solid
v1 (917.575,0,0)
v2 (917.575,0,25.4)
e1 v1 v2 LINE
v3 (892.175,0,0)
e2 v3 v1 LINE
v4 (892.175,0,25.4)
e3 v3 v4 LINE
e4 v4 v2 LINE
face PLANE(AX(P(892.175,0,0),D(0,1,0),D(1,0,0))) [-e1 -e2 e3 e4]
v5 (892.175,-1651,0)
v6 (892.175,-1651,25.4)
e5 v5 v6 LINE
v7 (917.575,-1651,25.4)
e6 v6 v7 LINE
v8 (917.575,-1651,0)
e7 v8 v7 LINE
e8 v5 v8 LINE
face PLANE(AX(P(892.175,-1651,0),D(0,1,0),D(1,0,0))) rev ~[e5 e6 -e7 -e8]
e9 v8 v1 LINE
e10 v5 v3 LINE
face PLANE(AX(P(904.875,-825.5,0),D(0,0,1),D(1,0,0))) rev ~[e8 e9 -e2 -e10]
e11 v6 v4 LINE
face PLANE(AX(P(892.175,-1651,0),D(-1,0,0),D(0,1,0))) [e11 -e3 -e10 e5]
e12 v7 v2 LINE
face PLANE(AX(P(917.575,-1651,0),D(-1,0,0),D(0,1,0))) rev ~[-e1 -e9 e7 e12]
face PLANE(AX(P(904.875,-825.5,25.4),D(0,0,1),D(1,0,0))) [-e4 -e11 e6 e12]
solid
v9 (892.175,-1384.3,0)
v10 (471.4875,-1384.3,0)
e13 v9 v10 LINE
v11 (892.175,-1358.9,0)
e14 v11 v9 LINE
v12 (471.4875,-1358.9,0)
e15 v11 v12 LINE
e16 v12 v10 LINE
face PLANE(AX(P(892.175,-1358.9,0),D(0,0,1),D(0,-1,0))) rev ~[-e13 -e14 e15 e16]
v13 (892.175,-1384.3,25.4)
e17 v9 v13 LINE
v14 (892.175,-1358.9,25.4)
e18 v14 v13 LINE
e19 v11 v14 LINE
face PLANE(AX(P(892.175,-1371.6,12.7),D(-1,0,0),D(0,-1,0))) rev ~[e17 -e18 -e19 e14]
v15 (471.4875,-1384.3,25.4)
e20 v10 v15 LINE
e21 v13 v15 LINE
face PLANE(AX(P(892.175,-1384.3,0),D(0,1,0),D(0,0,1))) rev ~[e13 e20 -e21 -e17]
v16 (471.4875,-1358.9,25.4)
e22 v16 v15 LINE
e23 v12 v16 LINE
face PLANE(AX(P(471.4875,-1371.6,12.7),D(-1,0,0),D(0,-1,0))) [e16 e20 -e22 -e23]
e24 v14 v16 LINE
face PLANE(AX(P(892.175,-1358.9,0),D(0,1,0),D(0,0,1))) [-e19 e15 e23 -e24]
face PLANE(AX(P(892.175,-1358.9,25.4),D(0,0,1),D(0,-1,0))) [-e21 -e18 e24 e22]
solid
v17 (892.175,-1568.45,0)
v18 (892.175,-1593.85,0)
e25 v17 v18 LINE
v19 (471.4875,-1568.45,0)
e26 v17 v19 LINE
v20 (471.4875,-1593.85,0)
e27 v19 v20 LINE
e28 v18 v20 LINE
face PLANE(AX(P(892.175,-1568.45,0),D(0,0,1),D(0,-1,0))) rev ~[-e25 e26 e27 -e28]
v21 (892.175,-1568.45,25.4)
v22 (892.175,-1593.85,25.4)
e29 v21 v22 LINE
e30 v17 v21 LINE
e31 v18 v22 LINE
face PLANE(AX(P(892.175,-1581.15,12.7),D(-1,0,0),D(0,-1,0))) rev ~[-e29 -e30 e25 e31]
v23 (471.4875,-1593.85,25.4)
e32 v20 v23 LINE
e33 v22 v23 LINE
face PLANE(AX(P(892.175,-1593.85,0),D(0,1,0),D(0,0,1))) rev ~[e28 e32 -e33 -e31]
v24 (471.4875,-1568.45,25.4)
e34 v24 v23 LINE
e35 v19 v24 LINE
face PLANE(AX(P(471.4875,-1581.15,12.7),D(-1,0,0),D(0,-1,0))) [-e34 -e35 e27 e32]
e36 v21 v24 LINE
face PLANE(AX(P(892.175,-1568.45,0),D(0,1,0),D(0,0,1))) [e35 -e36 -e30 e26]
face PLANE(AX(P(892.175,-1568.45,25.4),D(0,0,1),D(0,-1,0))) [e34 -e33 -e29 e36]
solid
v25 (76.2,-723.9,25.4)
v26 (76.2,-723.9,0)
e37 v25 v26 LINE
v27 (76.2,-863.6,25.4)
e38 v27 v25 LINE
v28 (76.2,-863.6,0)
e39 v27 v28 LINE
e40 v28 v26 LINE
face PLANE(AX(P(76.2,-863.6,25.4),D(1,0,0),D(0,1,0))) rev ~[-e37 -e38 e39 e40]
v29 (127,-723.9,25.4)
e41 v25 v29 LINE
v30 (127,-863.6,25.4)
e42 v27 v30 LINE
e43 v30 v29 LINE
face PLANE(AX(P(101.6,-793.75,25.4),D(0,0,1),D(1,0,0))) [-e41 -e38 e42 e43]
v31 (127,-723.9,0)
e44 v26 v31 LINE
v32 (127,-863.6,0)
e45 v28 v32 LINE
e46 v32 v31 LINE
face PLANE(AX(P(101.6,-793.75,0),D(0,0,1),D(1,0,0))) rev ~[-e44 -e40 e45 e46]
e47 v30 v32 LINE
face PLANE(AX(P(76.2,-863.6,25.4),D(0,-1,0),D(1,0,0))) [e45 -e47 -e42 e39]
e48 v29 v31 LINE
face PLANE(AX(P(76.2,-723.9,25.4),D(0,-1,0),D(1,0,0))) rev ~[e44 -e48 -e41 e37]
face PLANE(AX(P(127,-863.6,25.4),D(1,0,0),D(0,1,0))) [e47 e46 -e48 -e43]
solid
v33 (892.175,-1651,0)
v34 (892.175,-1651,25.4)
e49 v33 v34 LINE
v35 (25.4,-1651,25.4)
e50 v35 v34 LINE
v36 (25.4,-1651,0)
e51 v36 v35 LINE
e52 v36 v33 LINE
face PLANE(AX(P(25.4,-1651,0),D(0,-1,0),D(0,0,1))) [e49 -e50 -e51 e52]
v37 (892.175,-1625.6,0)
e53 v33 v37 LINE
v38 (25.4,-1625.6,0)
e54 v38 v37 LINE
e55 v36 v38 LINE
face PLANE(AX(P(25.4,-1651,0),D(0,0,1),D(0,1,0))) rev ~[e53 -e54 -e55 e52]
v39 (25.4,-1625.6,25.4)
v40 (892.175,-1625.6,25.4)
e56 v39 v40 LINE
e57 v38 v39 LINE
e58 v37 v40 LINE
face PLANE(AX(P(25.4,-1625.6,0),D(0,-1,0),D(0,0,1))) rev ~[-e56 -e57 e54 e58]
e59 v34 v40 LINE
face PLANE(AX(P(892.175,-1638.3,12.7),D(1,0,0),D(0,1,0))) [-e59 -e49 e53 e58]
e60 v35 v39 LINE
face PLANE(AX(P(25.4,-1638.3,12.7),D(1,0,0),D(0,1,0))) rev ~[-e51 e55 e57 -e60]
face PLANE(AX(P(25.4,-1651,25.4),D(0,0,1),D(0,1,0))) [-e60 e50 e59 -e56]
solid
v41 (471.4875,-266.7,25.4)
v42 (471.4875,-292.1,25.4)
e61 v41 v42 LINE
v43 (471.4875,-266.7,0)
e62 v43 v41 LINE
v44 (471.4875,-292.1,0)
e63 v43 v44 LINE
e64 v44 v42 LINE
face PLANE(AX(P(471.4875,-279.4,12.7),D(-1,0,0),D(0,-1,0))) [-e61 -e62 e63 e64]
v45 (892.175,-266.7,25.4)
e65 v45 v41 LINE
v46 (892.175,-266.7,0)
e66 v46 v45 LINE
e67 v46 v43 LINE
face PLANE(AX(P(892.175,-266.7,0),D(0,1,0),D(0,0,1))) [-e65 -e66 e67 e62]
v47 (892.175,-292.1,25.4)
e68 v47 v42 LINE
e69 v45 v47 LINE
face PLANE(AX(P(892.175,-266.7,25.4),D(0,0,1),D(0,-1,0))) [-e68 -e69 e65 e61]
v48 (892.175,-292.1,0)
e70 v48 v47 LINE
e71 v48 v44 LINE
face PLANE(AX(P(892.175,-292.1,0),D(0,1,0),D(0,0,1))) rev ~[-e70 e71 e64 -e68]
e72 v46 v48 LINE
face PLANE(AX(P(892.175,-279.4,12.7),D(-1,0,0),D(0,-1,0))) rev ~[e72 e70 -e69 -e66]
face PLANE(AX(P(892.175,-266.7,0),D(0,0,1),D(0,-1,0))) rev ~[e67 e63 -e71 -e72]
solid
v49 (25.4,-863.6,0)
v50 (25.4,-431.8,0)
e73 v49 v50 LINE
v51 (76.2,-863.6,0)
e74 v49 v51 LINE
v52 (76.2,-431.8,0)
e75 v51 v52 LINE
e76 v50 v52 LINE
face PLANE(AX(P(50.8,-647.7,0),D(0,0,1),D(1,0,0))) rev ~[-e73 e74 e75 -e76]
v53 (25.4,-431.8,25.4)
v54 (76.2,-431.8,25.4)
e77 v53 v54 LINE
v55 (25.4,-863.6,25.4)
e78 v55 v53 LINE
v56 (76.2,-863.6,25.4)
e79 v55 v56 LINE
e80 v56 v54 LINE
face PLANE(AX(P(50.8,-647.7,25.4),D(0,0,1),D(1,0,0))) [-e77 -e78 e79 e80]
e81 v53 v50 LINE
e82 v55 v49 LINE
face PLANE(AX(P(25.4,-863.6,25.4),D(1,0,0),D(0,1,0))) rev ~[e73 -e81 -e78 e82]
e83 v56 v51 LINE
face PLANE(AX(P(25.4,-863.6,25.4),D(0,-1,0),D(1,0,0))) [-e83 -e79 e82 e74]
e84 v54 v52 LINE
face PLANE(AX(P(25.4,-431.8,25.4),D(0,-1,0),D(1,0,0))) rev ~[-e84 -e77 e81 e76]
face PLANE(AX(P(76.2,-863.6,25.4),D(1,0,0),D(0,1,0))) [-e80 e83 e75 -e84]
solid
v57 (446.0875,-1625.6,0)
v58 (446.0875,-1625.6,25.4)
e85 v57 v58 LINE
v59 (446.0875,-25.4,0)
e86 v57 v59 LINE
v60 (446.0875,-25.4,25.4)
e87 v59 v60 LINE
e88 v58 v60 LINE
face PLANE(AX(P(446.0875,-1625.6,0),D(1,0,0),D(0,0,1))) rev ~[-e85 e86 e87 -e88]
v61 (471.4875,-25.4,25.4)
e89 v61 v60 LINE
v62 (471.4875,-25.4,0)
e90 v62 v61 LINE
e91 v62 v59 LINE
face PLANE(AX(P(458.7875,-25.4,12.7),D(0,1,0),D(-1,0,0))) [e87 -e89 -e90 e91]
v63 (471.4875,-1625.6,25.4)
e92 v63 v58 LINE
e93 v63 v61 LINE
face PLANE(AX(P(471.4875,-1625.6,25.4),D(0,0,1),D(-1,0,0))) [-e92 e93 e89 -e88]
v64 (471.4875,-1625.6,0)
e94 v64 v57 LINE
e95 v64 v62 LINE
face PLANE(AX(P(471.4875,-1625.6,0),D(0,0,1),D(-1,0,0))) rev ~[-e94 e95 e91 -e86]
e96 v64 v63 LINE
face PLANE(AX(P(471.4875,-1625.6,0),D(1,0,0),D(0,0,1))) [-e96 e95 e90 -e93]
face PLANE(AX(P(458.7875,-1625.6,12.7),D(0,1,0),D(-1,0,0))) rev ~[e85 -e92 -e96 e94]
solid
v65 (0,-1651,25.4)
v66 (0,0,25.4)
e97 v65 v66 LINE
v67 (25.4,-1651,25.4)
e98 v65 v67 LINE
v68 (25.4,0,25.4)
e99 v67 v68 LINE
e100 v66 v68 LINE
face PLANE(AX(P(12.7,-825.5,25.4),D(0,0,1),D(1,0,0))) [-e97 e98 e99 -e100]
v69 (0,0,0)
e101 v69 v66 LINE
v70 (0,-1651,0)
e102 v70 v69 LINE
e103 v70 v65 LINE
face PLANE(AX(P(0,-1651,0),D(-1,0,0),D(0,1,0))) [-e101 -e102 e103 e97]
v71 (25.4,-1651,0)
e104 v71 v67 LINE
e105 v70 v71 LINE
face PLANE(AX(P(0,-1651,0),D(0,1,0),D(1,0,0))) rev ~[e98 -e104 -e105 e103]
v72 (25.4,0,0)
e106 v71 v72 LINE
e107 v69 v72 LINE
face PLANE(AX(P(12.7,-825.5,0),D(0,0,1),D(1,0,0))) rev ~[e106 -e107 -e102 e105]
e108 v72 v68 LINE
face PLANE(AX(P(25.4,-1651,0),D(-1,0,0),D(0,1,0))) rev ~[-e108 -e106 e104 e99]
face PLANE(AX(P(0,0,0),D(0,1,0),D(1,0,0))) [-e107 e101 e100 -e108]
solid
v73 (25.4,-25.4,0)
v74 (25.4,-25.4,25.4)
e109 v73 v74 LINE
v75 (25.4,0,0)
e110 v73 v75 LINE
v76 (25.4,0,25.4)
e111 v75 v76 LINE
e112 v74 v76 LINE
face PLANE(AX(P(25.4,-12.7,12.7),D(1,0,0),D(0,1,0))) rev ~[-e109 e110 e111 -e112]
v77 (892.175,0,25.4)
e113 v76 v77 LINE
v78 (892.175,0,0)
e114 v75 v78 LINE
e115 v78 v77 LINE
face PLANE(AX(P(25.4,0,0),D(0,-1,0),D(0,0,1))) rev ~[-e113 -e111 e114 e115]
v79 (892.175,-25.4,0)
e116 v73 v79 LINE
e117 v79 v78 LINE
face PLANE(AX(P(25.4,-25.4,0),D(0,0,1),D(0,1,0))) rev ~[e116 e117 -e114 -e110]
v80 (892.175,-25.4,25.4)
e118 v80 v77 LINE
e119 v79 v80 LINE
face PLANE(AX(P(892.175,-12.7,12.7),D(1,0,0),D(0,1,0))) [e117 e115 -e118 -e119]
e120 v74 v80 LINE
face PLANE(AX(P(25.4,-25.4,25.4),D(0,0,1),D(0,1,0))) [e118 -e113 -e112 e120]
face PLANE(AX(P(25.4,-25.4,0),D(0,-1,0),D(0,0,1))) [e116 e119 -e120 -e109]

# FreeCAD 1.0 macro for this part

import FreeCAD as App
import Part
import Sketcher
from FreeCAD import Vector
Q = App.Units.Quantity


def add_polygon(sketch, points):
    """Adds a closed chain of lines whose ends are joined by coincident constraints."""
    first, n = sketch.GeometryCount, len(points)
    for a, b in zip(points, points[1:] + points[:1]):
        sketch.addGeometry(Part.LineSegment(App.Vector(*a, 0), App.Vector(*b, 0)), False)
    for i in range(n):
        sketch.addConstraint(Sketcher.Constraint("Coincident", first + i, 2, first + (i + 1) % n, 1))

doc = App.newDocument("Part")
params = doc.addObject("Spreadsheet::Sheet", "Params")
for row, (alias, value) in enumerate([
    ("sketch1_width", "1 in"),
    ("sketch1_height", "65 in"),
    ("pad1_length", "1 in"),
    ("sketch2_width", "1 in"),
    ("pad2_length", "34.125 in"),
    ("sketch3_width", "1 in"),
    ("pad3_length", "63 in"),
    ("sketch4_width", "1 in"),
    ("pad4_length", "16.5625 in"),
    ("sketch5_width", "2 in"),
    ("sketch5_height", "17 in"),
    ("pad5_length", "1 in"),
    ("sketch6_width", "2 in"),
    ("sketch6_height", "5.5 in"),
    ("pad6_length", "1 in"),
], start=1):
    params.set(f"A{row}", alias)
    params.set(f"B{row}", "=" + value)
    params.setAlias(f"B{row}", alias)

body = doc.addObject("PartDesign::Body", "Body")
body.AllowCompound = True

# Sketch on XY plane
sketch1 = body.newObject("Sketcher::SketchObject", "Sketch")
sketch1.AttachmentSupport = (doc.getObject("XY_Plane"), [""])
sketch1.MapMode = "FlatFace"
add_polygon(sketch1, [(0, 0), (0, -1651), (25, -1651), (25, 0)])  # lines 0-3
add_polygon(sketch1, [(892, 0), (892, -1651), (918, -1651), (918, 0)])  # lines 4-7
sketch1.addConstraint(Sketcher.Constraint("Vertical", 0))
sketch1.addConstraint(Sketcher.Constraint("Horizontal", 1))
sketch1.addConstraint(Sketcher.Constraint("Vertical", 2))
sketch1.addConstraint(Sketcher.Constraint("Horizontal", 3))
sketch1.addConstraint(Sketcher.Constraint("Vertical", 4))
sketch1.addConstraint(Sketcher.Constraint("Horizontal", 5))
sketch1.addConstraint(Sketcher.Constraint("Vertical", 6))
sketch1.addConstraint(Sketcher.Constraint("Horizontal", 7))
sketch1.addConstraint(Sketcher.Constraint("Coincident", 3, 2, -1, 1))
sketch1.addConstraint(Sketcher.Constraint("PointOnObject", 6, 2, -1))
sketch1.addConstraint(Sketcher.Constraint("Horizontal", 1, 2, 4, 2))
sketch1.addConstraint(Sketcher.Constraint("Equal", 3, 5))
sketch1.addConstraint(Sketcher.Constraint("DistanceX", 1, 1, 1, 2, Q("1 in")))
sketch1.addConstraint(Sketcher.Constraint("DistanceY", 0, 2, 0, 1, Q("65 in")))
sketch1.addConstraint(Sketcher.Constraint("DistanceX", -1, 1, 4, 2, Q("35.125 in")))
sketch1.setExpression("Constraints[20]", "Params.sketch1_width")
sketch1.setExpression("Constraints[21]", "Params.sketch1_height")
pad1 = body.newObject("PartDesign::Pad", "Pad")
pad1.Profile = sketch1
pad1.setExpression("Length", "Params.pad1_length")
body2 = doc.addObject("PartDesign::Body", "Body001")
body2.AllowCompound = True

# Sketch on YZ plane
sketch2 = body2.newObject("Sketcher::SketchObject", "Sketch001")
sketch2.AttachmentSupport = (doc.getObject("YZ_Plane001"), [""])
sketch2.MapMode = "FlatFace"
sketch2.AttachmentOffset = App.Placement(Vector(0, 0, 1 * 25.4), App.Rotation())
add_polygon(sketch2, [(-25, 25), (-25, 0), (0, 0), (0, 25)])  # lines 0-3
add_polygon(sketch2, [(-1651, 25), (-1651, 0), (-1626, 0), (-1626, 25)])  # lines 4-7
sketch2.addConstraint(Sketcher.Constraint("Vertical", 0))
sketch2.addConstraint(Sketcher.Constraint("Horizontal", 1))
sketch2.addConstraint(Sketcher.Constraint("Vertical", 2))
sketch2.addConstraint(Sketcher.Constraint("Horizontal", 3))
sketch2.addConstraint(Sketcher.Constraint("Vertical", 4))
sketch2.addConstraint(Sketcher.Constraint("Horizontal", 5))
sketch2.addConstraint(Sketcher.Constraint("Vertical", 6))
sketch2.addConstraint(Sketcher.Constraint("Horizontal", 7))
sketch2.addConstraint(Sketcher.Constraint("Coincident", 1, 2, -1, 1))
sketch2.addConstraint(Sketcher.Constraint("PointOnObject", 4, 2, -1))
sketch2.addConstraint(Sketcher.Constraint("Horizontal", 3, 2, 6, 2))
sketch2.addConstraint(Sketcher.Constraint("Equal", 3, 5))
sketch2.addConstraint(Sketcher.Constraint("Equal", 7, 0))
sketch2.addConstraint(Sketcher.Constraint("DistanceX", 1, 1, 1, 2, Q("1 in")))
sketch2.addConstraint(Sketcher.Constraint("DistanceX", 4, 2, -1, 1, Q("65 in")))
sketch2.setExpression("Constraints[21]", "Params.sketch2_width")
pad2 = body2.newObject("PartDesign::Pad", "Pad001")
pad2.Profile = sketch2
pad2.setExpression("Length", "Params.pad2_length")
body3 = doc.addObject("PartDesign::Body", "Body002")

# Sketch on XZ plane
sketch3 = body3.newObject("Sketcher::SketchObject", "Sketch002")
sketch3.AttachmentSupport = (doc.getObject("XZ_Plane002"), [""])
sketch3.MapMode = "FlatFace"
sketch3.AttachmentOffset = App.Placement(Vector(0, 0, 64 * 25.4), App.Rotation())
add_polygon(sketch3, [(471, 25), (471, 0), (446, 0), (446, 25)])  # lines 0-3
sketch3.addConstraint(Sketcher.Constraint("Vertical", 0))
sketch3.addConstraint(Sketcher.Constraint("Horizontal", 1))
sketch3.addConstraint(Sketcher.Constraint("Vertical", 2))
sketch3.addConstraint(Sketcher.Constraint("Horizontal", 3))
sketch3.addConstraint(Sketcher.Constraint("PointOnObject", 0, 2, -1))
sketch3.addConstraint(Sketcher.Constraint("Equal", 3, 0))
sketch3.addConstraint(Sketcher.Constraint("DistanceX", 1, 2, 1, 1, Q("1 in")))
sketch3.addConstraint(Sketcher.Constraint("DistanceX", -1, 1, 0, 2, Q("18.5625 in")))
sketch3.setExpression("Constraints[10]", "Params.sketch3_width")
pad3 = body3.newObject("PartDesign::Pad", "Pad002")
pad3.Profile = sketch3
pad3.setExpression("Length", "Params.pad3_length")
pad3.Reversed = True
body4 = doc.addObject("PartDesign::Body", "Body003")
body4.AllowCompound = True

# Sketch on YZ plane
sketch4 = body4.newObject("Sketcher::SketchObject", "Sketch003")
sketch4.AttachmentSupport = (doc.getObject("YZ_Plane003"), [""])
sketch4.MapMode = "FlatFace"
sketch4.AttachmentOffset = App.Placement(Vector(0, 0, 35.125 * 25.4), App.Rotation())
add_polygon(sketch4, [(-267, 25), (-267, 0), (-292, 0), (-292, 25)])  # lines 0-3
add_polygon(sketch4, [(-1568, 25), (-1568, 0), (-1594, 0), (-1594, 25)])  # lines 4-7
add_polygon(sketch4, [(-1359, 25), (-1359, 0), (-1384, 0), (-1384, 25)])  # lines 8-11
sketch4.addConstraint(Sketcher.Constraint("Vertical", 0))
sketch4.addConstraint(Sketcher.Constraint("Horizontal", 1))
sketch4.addConstraint(Sketcher.Constraint("Vertical", 2))
sketch4.addConstraint(Sketcher.Constraint("Horizontal", 3))
sketch4.addConstraint(Sketcher.Constraint("Vertical", 4))
sketch4.addConstraint(Sketcher.Constraint("Horizontal", 5))
sketch4.addConstraint(Sketcher.Constraint("Vertical", 6))
sketch4.addConstraint(Sketcher.Constraint("Horizontal", 7))
sketch4.addConstraint(Sketcher.Constraint("Vertical", 8))
sketch4.addConstraint(Sketcher.Constraint("Horizontal", 9))
sketch4.addConstraint(Sketcher.Constraint("Vertical", 10))
sketch4.addConstraint(Sketcher.Constraint("Horizontal", 11))
sketch4.addConstraint(Sketcher.Constraint("PointOnObject", 0, 2, -1))
sketch4.addConstraint(Sketcher.Constraint("PointOnObject", 4, 2, -1))
sketch4.addConstraint(Sketcher.Constraint("PointOnObject", 8, 2, -1))
sketch4.addConstraint(Sketcher.Constraint("Horizontal", 3, 2, 6, 2))
sketch4.addConstraint(Sketcher.Constraint("Horizontal", 7, 2, 10, 2))
sketch4.addConstraint(Sketcher.Constraint("Equal", 3, 5))
sketch4.addConstraint(Sketcher.Constraint("Equal", 7, 9))
sketch4.addConstraint(Sketcher.Constraint("Equal", 11, 0))
sketch4.addConstraint(Sketcher.Constraint("DistanceX", 1, 2, 1, 1, Q("1 in")))
sketch4.addConstraint(Sketcher.Constraint("DistanceX", 8, 2, 1, 2, Q("42 in")))
sketch4.addConstraint(Sketcher.Constraint("DistanceX", 0, 2, -1, 1, Q("10.5 in")))
sketch4.addConstraint(Sketcher.Constraint("DistanceX", 4, 2, -1, 1, Q("61.75 in")))
sketch4.setExpression("Constraints[32]", "Params.sketch4_width")
pad4 = body4.newObject("PartDesign::Pad", "Pad003")
pad4.Profile = sketch4
pad4.setExpression("Length", "Params.pad4_length")
pad4.Reversed = True
body5 = doc.addObject("PartDesign::Body", "Body004")

# Sketch on XY plane
sketch5 = body5.newObject("Sketcher::SketchObject", "Sketch004")
sketch5.AttachmentSupport = (doc.getObject("XY_Plane004"), [""])
sketch5.MapMode = "FlatFace"
sketch5.AttachmentOffset = App.Placement(Vector(0, 0, 1 * 25.4), App.Rotation())
add_polygon(sketch5, [(25, -432), (25, -864), (76, -864), (76, -432)])  # lines 0-3
sketch5.addConstraint(Sketcher.Constraint("Vertical", 0))
sketch5.addConstraint(Sketcher.Constraint("Horizontal", 1))
sketch5.addConstraint(Sketcher.Constraint("Vertical", 2))
sketch5.addConstraint(Sketcher.Constraint("Horizontal", 3))
sketch5.addConstraint(Sketcher.Constraint("DistanceX", 1, 1, 1, 2, Q("2 in")))
sketch5.addConstraint(Sketcher.Constraint("DistanceY", 0, 2, 0, 1, Q("17 in")))
sketch5.addConstraint(Sketcher.Constraint("DistanceX", -1, 1, 0, 2, Q("1 in")))
sketch5.addConstraint(Sketcher.Constraint("DistanceY", 0, 2, -1, 1, Q("34 in")))
sketch5.setExpression("Constraints[8]", "Params.sketch5_width")
sketch5.setExpression("Constraints[9]", "Params.sketch5_height")
pad5 = body5.newObject("PartDesign::Pad", "Pad004")
pad5.Profile = sketch5
pad5.setExpression("Length", "Params.pad5_length")
pad5.Reversed = True
body6 = doc.addObject("PartDesign::Body", "Body005")

# Sketch on XY plane
sketch6 = body6.newObject("Sketcher::SketchObject", "Sketch005")
sketch6.AttachmentSupport = (doc.getObject("XY_Plane005"), [""])
sketch6.MapMode = "FlatFace"
sketch6.AttachmentOffset = App.Placement(Vector(0, 0, 1 * 25.4), App.Rotation())
add_polygon(sketch6, [(76, -724), (76, -864), (127, -864), (127, -724)])  # lines 0-3
sketch6.addConstraint(Sketcher.Constraint("Vertical", 0))
sketch6.addConstraint(Sketcher.Constraint("Horizontal", 1))
sketch6.addConstraint(Sketcher.Constraint("Vertical", 2))
sketch6.addConstraint(Sketcher.Constraint("Horizontal", 3))
sketch6.addConstraint(Sketcher.Constraint("DistanceX", 1, 1, 1, 2, Q("2 in")))
sketch6.addConstraint(Sketcher.Constraint("DistanceY", 0, 2, 0, 1, Q("5.5 in")))
sketch6.addConstraint(Sketcher.Constraint("DistanceX", -1, 1, 0, 2, Q("3 in")))
sketch6.addConstraint(Sketcher.Constraint("DistanceY", 0, 2, -1, 1, Q("34 in")))
sketch6.setExpression("Constraints[8]", "Params.sketch6_width")
sketch6.setExpression("Constraints[9]", "Params.sketch6_height")
pad6 = body6.newObject("PartDesign::Pad", "Pad005")
pad6.Profile = sketch6
pad6.setExpression("Length", "Params.pad6_length")
pad6.Reversed = True

doc.recompute()
